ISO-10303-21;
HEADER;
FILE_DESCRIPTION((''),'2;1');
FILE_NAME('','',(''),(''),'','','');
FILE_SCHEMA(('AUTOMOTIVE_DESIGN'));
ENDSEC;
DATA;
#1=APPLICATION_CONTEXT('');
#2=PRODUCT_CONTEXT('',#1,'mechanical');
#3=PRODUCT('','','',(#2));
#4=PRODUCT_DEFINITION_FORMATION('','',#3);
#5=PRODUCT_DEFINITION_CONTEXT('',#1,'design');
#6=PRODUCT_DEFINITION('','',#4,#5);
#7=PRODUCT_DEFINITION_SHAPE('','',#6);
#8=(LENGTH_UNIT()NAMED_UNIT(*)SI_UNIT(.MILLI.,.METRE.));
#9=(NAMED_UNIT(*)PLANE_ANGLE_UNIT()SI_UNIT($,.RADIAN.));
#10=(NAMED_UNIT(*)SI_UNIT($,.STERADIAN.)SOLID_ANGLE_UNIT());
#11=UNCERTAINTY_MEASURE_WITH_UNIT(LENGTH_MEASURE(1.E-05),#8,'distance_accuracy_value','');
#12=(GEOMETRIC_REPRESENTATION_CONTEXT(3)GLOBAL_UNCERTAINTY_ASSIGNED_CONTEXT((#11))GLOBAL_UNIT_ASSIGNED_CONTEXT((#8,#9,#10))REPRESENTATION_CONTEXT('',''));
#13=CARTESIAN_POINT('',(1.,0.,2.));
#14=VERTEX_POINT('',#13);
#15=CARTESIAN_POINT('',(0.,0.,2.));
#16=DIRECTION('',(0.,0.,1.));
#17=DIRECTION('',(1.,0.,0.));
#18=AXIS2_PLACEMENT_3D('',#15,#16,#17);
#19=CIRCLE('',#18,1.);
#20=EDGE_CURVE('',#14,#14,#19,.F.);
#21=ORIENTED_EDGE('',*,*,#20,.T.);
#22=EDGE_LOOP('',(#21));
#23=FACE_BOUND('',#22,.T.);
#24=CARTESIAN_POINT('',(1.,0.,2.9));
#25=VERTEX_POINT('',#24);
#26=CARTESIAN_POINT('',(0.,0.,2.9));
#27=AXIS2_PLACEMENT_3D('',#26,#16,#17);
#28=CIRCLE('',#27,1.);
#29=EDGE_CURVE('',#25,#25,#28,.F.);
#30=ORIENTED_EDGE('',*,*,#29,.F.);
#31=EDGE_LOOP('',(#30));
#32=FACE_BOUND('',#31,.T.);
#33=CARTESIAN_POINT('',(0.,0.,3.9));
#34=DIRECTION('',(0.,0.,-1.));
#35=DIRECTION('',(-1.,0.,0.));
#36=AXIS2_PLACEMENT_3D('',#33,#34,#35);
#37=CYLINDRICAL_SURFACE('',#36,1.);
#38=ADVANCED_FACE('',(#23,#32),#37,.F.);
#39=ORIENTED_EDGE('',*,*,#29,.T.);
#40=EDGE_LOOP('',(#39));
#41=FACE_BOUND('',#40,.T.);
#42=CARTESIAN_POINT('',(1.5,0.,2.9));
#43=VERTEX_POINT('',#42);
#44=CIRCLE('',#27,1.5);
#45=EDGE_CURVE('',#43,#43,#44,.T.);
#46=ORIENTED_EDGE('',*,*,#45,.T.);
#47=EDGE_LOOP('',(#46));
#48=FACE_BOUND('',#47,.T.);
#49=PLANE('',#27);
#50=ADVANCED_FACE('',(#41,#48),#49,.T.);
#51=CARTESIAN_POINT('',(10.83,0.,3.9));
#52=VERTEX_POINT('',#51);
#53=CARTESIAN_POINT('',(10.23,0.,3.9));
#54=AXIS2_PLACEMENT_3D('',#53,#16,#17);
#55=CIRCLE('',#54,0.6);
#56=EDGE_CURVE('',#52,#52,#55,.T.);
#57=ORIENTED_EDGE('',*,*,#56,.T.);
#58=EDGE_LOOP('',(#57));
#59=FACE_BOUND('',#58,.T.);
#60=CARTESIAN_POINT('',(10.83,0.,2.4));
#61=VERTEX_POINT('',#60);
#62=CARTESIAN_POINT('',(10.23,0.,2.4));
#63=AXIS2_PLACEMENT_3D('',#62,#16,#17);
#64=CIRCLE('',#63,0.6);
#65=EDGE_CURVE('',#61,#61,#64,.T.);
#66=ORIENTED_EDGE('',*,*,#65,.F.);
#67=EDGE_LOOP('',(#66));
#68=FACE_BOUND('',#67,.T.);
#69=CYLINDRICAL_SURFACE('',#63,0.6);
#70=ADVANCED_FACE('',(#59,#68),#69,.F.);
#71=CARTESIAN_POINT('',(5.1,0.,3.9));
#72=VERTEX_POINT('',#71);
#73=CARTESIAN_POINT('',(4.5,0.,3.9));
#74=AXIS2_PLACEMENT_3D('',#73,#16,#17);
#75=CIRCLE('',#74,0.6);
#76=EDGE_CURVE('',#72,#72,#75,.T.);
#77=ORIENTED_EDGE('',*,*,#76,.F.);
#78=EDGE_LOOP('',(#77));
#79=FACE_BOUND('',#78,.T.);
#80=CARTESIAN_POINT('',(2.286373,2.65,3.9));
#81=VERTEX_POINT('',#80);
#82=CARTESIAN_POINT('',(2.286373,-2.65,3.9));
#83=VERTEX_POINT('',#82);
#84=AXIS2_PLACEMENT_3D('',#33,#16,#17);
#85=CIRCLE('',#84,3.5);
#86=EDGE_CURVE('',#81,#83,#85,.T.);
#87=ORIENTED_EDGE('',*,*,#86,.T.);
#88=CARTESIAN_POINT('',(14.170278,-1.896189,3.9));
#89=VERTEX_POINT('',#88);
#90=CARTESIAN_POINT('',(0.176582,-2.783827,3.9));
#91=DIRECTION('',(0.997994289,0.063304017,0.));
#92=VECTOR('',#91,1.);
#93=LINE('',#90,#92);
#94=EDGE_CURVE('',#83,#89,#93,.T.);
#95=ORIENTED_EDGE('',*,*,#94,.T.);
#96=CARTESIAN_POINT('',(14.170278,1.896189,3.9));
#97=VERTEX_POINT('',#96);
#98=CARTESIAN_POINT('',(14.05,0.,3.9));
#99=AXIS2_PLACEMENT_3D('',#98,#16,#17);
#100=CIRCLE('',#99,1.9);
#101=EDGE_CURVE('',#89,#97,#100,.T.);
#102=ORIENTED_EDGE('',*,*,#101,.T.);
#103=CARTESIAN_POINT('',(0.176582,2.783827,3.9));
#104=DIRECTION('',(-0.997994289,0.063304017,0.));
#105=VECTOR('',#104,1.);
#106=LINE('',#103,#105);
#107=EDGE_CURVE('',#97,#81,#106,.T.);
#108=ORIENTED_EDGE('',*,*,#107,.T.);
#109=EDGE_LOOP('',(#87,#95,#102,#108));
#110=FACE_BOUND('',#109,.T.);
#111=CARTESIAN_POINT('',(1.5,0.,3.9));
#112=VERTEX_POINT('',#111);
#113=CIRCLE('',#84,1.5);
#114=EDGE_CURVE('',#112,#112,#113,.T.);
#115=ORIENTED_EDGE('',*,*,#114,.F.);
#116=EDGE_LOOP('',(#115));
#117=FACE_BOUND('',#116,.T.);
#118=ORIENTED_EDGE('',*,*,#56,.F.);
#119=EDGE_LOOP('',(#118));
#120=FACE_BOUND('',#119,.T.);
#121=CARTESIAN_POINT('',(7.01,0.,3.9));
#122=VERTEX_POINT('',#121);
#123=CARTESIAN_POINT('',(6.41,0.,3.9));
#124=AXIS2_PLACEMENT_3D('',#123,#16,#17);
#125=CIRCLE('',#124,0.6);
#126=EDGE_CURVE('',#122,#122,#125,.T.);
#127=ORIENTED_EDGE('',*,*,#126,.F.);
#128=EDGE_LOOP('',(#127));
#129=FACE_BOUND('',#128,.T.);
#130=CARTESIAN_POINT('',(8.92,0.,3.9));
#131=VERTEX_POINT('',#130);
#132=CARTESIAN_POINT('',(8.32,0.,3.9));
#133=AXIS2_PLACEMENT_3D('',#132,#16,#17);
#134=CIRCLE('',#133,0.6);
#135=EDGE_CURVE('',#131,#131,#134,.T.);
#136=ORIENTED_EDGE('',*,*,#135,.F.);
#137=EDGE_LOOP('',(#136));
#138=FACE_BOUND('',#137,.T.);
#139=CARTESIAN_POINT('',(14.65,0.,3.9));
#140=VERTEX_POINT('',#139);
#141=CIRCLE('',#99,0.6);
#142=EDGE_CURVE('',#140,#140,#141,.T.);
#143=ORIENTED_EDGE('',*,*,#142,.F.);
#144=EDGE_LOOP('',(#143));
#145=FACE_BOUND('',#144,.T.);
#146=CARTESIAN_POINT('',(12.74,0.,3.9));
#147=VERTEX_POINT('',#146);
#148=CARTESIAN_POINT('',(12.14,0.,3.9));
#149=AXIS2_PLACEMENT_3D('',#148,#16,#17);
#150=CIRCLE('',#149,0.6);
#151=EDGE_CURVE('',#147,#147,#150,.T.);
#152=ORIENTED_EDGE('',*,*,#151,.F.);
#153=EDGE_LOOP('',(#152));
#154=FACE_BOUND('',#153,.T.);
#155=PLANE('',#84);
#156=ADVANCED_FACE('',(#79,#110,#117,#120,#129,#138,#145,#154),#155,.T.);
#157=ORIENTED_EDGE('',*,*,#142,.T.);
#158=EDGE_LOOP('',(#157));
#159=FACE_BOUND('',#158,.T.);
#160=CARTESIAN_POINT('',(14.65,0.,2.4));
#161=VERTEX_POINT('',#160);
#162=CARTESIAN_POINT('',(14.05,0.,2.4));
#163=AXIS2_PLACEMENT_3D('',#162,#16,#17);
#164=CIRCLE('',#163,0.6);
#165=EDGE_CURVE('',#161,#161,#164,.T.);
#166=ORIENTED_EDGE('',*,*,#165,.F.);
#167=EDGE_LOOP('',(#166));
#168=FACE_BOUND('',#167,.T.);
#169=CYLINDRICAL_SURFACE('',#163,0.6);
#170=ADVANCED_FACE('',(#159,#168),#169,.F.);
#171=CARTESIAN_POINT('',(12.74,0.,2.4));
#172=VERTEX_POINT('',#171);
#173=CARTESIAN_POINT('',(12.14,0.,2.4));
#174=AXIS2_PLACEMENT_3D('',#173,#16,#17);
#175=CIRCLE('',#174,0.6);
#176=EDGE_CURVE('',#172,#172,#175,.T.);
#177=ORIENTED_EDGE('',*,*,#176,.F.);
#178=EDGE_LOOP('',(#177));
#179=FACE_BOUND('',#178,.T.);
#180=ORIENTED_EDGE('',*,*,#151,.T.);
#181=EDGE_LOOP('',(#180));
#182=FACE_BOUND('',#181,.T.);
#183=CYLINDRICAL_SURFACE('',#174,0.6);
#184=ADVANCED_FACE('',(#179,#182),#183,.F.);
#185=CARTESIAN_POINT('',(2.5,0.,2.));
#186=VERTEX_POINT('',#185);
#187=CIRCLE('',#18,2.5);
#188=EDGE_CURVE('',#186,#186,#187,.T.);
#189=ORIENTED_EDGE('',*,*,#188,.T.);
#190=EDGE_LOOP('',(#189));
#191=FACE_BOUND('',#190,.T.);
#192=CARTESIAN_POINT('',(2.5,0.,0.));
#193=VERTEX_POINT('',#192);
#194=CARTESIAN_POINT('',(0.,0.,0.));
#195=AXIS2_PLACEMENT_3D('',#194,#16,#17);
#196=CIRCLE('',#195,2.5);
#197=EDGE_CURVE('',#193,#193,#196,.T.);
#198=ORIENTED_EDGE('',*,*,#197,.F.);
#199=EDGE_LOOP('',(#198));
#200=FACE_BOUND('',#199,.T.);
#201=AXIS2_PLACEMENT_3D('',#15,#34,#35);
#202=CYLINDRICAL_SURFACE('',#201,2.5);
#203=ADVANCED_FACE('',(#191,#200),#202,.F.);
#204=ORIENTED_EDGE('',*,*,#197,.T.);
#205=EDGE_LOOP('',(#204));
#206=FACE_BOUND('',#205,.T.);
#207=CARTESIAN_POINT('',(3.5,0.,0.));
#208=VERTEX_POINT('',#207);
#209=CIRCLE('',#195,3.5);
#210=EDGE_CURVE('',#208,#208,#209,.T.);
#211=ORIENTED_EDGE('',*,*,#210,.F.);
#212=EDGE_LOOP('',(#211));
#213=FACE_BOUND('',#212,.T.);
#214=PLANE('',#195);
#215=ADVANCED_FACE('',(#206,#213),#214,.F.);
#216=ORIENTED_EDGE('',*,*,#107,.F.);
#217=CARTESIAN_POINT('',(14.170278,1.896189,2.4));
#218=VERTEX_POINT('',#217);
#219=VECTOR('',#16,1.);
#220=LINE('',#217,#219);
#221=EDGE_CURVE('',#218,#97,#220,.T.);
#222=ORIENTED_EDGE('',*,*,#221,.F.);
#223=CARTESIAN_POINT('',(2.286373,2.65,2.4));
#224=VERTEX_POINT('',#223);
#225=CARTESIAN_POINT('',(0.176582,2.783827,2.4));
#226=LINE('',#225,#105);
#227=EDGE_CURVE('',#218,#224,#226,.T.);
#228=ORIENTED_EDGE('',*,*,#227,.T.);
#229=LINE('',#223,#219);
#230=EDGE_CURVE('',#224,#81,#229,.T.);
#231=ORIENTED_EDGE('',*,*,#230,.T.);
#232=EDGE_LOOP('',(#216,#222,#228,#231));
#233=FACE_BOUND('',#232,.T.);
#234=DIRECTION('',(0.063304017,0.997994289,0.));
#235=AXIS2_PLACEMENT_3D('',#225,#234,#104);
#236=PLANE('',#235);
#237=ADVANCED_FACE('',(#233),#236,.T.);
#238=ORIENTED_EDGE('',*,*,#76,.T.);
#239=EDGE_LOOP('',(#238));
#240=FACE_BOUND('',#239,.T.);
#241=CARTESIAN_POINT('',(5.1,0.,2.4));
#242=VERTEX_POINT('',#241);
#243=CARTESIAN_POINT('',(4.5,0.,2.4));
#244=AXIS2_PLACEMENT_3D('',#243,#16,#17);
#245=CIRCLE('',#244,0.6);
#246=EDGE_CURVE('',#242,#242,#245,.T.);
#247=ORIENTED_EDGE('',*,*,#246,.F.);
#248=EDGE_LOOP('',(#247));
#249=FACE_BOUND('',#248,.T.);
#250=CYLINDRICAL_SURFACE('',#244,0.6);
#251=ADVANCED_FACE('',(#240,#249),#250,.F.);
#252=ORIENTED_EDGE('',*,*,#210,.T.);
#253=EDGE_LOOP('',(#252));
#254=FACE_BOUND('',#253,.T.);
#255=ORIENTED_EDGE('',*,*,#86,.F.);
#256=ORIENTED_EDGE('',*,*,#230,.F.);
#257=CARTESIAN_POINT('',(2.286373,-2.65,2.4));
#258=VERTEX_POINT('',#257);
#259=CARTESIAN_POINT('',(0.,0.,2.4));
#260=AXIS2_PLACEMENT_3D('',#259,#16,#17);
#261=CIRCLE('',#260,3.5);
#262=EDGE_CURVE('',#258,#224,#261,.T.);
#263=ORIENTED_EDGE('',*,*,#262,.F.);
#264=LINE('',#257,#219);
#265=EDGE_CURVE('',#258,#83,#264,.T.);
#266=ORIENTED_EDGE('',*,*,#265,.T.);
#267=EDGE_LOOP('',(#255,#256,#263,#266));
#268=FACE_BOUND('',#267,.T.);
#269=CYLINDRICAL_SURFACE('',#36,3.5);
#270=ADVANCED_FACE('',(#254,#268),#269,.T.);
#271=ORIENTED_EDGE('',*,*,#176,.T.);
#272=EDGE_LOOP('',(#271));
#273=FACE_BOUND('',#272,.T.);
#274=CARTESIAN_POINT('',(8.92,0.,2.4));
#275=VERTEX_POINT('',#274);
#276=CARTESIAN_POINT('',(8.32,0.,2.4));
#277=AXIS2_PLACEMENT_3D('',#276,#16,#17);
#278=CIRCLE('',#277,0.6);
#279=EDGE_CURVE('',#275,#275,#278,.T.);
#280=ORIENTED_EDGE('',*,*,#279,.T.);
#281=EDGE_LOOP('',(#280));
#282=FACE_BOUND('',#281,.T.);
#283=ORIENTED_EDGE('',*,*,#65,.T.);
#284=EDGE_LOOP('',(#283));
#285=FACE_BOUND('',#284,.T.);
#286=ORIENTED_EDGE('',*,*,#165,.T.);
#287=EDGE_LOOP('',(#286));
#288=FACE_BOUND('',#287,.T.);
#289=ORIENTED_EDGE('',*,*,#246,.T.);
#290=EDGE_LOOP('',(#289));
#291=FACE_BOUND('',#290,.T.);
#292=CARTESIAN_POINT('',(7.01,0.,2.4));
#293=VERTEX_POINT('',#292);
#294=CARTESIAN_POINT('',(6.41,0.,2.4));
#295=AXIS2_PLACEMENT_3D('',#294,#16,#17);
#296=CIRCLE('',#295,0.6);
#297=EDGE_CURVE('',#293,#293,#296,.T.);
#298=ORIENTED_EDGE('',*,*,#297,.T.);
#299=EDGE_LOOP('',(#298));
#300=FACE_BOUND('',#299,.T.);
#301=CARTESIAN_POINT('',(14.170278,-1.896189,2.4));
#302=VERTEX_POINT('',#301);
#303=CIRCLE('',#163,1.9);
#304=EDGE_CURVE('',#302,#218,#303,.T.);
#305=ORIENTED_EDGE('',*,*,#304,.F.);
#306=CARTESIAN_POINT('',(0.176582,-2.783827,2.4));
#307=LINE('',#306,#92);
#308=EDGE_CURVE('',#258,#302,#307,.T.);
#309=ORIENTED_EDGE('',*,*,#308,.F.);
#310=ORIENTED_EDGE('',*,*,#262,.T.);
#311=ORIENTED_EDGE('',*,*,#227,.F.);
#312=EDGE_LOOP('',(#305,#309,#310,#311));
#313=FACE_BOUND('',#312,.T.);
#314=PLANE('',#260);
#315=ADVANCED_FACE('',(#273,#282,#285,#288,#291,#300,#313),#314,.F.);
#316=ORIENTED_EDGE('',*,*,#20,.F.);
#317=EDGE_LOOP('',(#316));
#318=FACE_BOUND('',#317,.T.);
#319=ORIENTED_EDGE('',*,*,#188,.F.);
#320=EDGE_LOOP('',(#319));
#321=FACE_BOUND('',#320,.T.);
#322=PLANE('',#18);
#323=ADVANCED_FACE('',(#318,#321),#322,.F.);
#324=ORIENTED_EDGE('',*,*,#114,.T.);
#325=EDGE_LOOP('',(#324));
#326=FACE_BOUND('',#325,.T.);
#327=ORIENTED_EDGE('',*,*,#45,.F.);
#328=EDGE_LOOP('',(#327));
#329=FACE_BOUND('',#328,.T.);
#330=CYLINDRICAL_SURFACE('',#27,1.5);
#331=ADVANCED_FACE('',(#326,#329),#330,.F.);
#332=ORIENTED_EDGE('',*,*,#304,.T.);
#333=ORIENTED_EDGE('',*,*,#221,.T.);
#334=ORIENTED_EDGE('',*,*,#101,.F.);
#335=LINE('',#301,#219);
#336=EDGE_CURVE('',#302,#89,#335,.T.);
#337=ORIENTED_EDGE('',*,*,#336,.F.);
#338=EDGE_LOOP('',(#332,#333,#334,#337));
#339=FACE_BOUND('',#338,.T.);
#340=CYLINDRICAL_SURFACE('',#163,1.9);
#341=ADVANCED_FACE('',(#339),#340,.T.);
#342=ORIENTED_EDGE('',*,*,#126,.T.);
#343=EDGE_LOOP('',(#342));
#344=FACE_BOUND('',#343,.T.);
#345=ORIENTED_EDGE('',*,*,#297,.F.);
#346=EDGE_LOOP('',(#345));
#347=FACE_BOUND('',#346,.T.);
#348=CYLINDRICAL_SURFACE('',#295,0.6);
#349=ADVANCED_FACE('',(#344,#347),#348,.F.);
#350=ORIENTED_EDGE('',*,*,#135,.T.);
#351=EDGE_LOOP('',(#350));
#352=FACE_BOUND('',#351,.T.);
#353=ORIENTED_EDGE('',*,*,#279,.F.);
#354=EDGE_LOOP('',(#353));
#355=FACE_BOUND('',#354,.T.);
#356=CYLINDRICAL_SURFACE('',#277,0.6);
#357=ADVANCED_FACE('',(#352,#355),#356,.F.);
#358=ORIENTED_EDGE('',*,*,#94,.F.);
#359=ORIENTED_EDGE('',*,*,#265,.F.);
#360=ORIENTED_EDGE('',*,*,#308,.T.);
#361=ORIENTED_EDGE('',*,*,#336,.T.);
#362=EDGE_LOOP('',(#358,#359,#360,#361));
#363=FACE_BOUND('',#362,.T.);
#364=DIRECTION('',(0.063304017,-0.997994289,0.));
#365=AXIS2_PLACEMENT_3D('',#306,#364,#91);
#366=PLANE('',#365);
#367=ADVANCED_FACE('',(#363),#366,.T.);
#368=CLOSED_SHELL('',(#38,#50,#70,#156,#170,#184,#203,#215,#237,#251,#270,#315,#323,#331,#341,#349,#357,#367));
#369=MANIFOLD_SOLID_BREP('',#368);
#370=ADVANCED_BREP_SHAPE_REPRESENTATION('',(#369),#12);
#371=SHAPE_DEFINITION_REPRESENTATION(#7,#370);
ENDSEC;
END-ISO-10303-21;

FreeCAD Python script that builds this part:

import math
import FreeCAD as App
import Part
import Sketcher

doc = App.newDocument("Part")
params = doc.addObject("Spreadsheet::Sheet", "Params")
for row, (alias, value) in enumerate([
    ("sketch1_diameter", "7 mm"),
    ("pad1_length", "3.9 mm"),
    ("sketch2_diameter", "1.2 mm"),
    ("sketch2_radius", "3.5 mm"),
    ("sketch2_radius2", "1.9 mm"),
    ("pad2_length", "1.5 mm"),
    ("sketch3_diameter", "5 mm"),
    ("pocket1_length", "2 mm"),
    ("sketch4_diameter", "3 mm"),
    ("pocket2_length", "1 mm"),
    ("sketch5_diameter", "2 mm"),
], start=1):
    params.set(f"A{row}", alias)
    params.set(f"B{row}", "=" + value)
    params.setAlias(f"B{row}", alias)

body = doc.addObject("PartDesign::Body", "Body")

# Sketch on XY plane
sketch1 = body.newObject("Sketcher::SketchObject", "Sketch")
sketch1.AttachmentSupport = (doc.getObject("XY_Plane"), [""])
sketch1.MapMode = "FlatFace"
sketch1.addGeometry(Part.Circle(App.Vector(0, 0, 0), App.Vector(0, 0, 1), 3.5), False)
sketch1.addConstraint(Sketcher.Constraint("Coincident", 0, 3, -1, 1))
sketch1.addConstraint(Sketcher.Constraint("Diameter", 0, 7.0))
sketch1.setExpression("Constraints[1]", "Params.sketch1_diameter")
pad1 = body.newObject("PartDesign::Pad", "Pad")
pad1.Profile = sketch1
pad1.setExpression("Length", "Params.pad1_length")

# Sketch on XY plane
sketch2 = body.newObject("Sketcher::SketchObject", "Sketch001")
sketch2.AttachmentSupport = (doc.getObject("XY_Plane"), [""])
sketch2.MapMode = "FlatFace"
sketch2.AttachmentOffset = App.Placement(App.Vector(0, 0, 2.4), App.Rotation())
sketch2.addGeometry(Part.LineSegment(App.Vector(14.2, 1.9, 0), App.Vector(2.3, 2.6, 0)), False)
sketch2.addGeometry(Part.ArcOfCircle(Part.Circle(App.Vector(0, 0, 0), App.Vector(0, 0, 1), 3.5), math.radians(-49), math.radians(49)), False)
sketch2.addGeometry(Part.LineSegment(App.Vector(2.3, -2.6, 0), App.Vector(14.2, -1.9, 0)), False)
sketch2.addGeometry(Part.ArcOfCircle(Part.Circle(App.Vector(14.1, 0, 0), App.Vector(0, 0, 1), 1.9), math.radians(-86), math.radians(86)), False)
sketch2.addGeometry(Part.Circle(App.Vector(4.5, 0, 0), App.Vector(0, 0, 1), 0.6), False)
sketch2.addGeometry(Part.Circle(App.Vector(6.4, 0, 0), App.Vector(0, 0, 1), 0.6), False)
sketch2.addGeometry(Part.Circle(App.Vector(8.3, 0, 0), App.Vector(0, 0, 1), 0.6), False)
sketch2.addGeometry(Part.Circle(App.Vector(10.2, 0, 0), App.Vector(0, 0, 1), 0.6), False)
sketch2.addGeometry(Part.Circle(App.Vector(14.1, 0, 0), App.Vector(0, 0, 1), 0.6), False)
sketch2.addGeometry(Part.Circle(App.Vector(12.1, 0, 0), App.Vector(0, 0, 1), 0.6), False)
sketch2.addConstraint(Sketcher.Constraint("Coincident", 0, 2, 1, 2))
sketch2.addConstraint(Sketcher.Constraint("Coincident", 1, 1, 2, 1))
sketch2.addConstraint(Sketcher.Constraint("Tangent", 2, 2, 3, 1))
sketch2.addConstraint(Sketcher.Constraint("Tangent", 3, 2, 0, 1))
sketch2.addConstraint(Sketcher.Constraint("Coincident", 1, 3, -1, 1))
sketch2.addConstraint(Sketcher.Constraint("Coincident", 8, 3, 3, 3))
sketch2.addConstraint(Sketcher.Constraint("Equal", 4, 5))
sketch2.addConstraint(Sketcher.Constraint("Equal", 5, 6))
sketch2.addConstraint(Sketcher.Constraint("Equal", 6, 7))
sketch2.addConstraint(Sketcher.Constraint("Equal", 7, 8))
sketch2.addConstraint(Sketcher.Constraint("Equal", 8, 9))
sketch2.addConstraint(Sketcher.Constraint("Symmetric", 2, 2, 3, 2, -1))
sketch2.addConstraint(Sketcher.Constraint("PointOnObject", 4, 3, -1))
sketch2.addConstraint(Sketcher.Constraint("PointOnObject", 5, 3, -1))
sketch2.addConstraint(Sketcher.Constraint("PointOnObject", 6, 3, -1))
sketch2.addConstraint(Sketcher.Constraint("PointOnObject", 7, 3, -1))
sketch2.addConstraint(Sketcher.Constraint("PointOnObject", 9, 3, -1))
sketch2.addConstraint(Sketcher.Constraint("Diameter", 4, 1.2))
sketch2.addConstraint(Sketcher.Constraint("Radius", 1, 3.5))
sketch2.addConstraint(Sketcher.Constraint("Radius", 3, 1.9))
sketch2.addConstraint(Sketcher.Constraint("DistanceX", -1, 1, 4, 3, 4.5))
sketch2.addConstraint(Sketcher.Constraint("DistanceY", 1, 1, 0, 2, 5.3))
sketch2.addConstraint(Sketcher.Constraint("DistanceX", -1, 1, 3, 3, 14.05))
sketch2.addConstraint(Sketcher.Constraint("DistanceX", -1, 1, 5, 3, 6.41))
sketch2.addConstraint(Sketcher.Constraint("DistanceX", -1, 1, 6, 3, 8.32))
sketch2.addConstraint(Sketcher.Constraint("DistanceX", -1, 1, 7, 3, 10.23))
sketch2.addConstraint(Sketcher.Constraint("DistanceX", -1, 1, 9, 3, 12.14))
sketch2.setExpression("Constraints[17]", "Params.sketch2_diameter")
sketch2.setExpression("Constraints[18]", "Params.sketch2_radius")
sketch2.setExpression("Constraints[19]", "Params.sketch2_radius2")
pad2 = body.newObject("PartDesign::Pad", "Pad001")
pad2.Profile = sketch2
pad2.setExpression("Length", "Params.pad2_length")

# Sketch on XY plane
sketch3 = body.newObject("Sketcher::SketchObject", "Sketch002")
sketch3.AttachmentSupport = (doc.getObject("XY_Plane"), [""])
sketch3.MapMode = "FlatFace"
sketch3.addGeometry(Part.Circle(App.Vector(0, 0, 0), App.Vector(0, 0, 1), 2.5), False)
sketch3.addConstraint(Sketcher.Constraint("Coincident", 0, 3, -1, 1))
sketch3.addConstraint(Sketcher.Constraint("Diameter", 0, 5.0))
sketch3.setExpression("Constraints[1]", "Params.sketch3_diameter")
pocket1 = body.newObject("PartDesign::Pocket", "Pocket")
pocket1.Profile = sketch3
pocket1.setExpression("Length", "Params.pocket1_length")
pocket1.Reversed = True

# Sketch on XY plane
sketch4 = body.newObject("Sketcher::SketchObject", "Sketch003")
sketch4.AttachmentSupport = (doc.getObject("XY_Plane"), [""])
sketch4.MapMode = "FlatFace"
sketch4.AttachmentOffset = App.Placement(App.Vector(0, 0, 3.9), App.Rotation())
sketch4.addGeometry(Part.Circle(App.Vector(0, 0, 0), App.Vector(0, 0, 1), 1.5), False)
sketch4.addConstraint(Sketcher.Constraint("Coincident", 0, 3, -1, 1))
sketch4.addConstraint(Sketcher.Constraint("Diameter", 0, 3.0))
sketch4.setExpression("Constraints[1]", "Params.sketch4_diameter")
pocket2 = body.newObject("PartDesign::Pocket", "Pocket001")
pocket2.Profile = sketch4
pocket2.setExpression("Length", "Params.pocket2_length")

# Sketch on XY plane
sketch5 = body.newObject("Sketcher::SketchObject", "Sketch004")
sketch5.AttachmentSupport = (doc.getObject("XY_Plane"), [""])
sketch5.MapMode = "FlatFace"
sketch5.addGeometry(Part.Circle(App.Vector(0, 0, 0), App.Vector(0, 0, 1), 1), False)
sketch5.addConstraint(Sketcher.Constraint("Coincident", 0, 3, -1, 1))
sketch5.addConstraint(Sketcher.Constraint("Diameter", 0, 2.0))
sketch5.setExpression("Constraints[1]", "Params.sketch5_diameter")
pocket3 = body.newObject("PartDesign::Pocket", "Pocket002")
pocket3.Profile = sketch5
pocket3.Type = "ThroughAll"
pocket3.Reversed = True

doc.recompute()
